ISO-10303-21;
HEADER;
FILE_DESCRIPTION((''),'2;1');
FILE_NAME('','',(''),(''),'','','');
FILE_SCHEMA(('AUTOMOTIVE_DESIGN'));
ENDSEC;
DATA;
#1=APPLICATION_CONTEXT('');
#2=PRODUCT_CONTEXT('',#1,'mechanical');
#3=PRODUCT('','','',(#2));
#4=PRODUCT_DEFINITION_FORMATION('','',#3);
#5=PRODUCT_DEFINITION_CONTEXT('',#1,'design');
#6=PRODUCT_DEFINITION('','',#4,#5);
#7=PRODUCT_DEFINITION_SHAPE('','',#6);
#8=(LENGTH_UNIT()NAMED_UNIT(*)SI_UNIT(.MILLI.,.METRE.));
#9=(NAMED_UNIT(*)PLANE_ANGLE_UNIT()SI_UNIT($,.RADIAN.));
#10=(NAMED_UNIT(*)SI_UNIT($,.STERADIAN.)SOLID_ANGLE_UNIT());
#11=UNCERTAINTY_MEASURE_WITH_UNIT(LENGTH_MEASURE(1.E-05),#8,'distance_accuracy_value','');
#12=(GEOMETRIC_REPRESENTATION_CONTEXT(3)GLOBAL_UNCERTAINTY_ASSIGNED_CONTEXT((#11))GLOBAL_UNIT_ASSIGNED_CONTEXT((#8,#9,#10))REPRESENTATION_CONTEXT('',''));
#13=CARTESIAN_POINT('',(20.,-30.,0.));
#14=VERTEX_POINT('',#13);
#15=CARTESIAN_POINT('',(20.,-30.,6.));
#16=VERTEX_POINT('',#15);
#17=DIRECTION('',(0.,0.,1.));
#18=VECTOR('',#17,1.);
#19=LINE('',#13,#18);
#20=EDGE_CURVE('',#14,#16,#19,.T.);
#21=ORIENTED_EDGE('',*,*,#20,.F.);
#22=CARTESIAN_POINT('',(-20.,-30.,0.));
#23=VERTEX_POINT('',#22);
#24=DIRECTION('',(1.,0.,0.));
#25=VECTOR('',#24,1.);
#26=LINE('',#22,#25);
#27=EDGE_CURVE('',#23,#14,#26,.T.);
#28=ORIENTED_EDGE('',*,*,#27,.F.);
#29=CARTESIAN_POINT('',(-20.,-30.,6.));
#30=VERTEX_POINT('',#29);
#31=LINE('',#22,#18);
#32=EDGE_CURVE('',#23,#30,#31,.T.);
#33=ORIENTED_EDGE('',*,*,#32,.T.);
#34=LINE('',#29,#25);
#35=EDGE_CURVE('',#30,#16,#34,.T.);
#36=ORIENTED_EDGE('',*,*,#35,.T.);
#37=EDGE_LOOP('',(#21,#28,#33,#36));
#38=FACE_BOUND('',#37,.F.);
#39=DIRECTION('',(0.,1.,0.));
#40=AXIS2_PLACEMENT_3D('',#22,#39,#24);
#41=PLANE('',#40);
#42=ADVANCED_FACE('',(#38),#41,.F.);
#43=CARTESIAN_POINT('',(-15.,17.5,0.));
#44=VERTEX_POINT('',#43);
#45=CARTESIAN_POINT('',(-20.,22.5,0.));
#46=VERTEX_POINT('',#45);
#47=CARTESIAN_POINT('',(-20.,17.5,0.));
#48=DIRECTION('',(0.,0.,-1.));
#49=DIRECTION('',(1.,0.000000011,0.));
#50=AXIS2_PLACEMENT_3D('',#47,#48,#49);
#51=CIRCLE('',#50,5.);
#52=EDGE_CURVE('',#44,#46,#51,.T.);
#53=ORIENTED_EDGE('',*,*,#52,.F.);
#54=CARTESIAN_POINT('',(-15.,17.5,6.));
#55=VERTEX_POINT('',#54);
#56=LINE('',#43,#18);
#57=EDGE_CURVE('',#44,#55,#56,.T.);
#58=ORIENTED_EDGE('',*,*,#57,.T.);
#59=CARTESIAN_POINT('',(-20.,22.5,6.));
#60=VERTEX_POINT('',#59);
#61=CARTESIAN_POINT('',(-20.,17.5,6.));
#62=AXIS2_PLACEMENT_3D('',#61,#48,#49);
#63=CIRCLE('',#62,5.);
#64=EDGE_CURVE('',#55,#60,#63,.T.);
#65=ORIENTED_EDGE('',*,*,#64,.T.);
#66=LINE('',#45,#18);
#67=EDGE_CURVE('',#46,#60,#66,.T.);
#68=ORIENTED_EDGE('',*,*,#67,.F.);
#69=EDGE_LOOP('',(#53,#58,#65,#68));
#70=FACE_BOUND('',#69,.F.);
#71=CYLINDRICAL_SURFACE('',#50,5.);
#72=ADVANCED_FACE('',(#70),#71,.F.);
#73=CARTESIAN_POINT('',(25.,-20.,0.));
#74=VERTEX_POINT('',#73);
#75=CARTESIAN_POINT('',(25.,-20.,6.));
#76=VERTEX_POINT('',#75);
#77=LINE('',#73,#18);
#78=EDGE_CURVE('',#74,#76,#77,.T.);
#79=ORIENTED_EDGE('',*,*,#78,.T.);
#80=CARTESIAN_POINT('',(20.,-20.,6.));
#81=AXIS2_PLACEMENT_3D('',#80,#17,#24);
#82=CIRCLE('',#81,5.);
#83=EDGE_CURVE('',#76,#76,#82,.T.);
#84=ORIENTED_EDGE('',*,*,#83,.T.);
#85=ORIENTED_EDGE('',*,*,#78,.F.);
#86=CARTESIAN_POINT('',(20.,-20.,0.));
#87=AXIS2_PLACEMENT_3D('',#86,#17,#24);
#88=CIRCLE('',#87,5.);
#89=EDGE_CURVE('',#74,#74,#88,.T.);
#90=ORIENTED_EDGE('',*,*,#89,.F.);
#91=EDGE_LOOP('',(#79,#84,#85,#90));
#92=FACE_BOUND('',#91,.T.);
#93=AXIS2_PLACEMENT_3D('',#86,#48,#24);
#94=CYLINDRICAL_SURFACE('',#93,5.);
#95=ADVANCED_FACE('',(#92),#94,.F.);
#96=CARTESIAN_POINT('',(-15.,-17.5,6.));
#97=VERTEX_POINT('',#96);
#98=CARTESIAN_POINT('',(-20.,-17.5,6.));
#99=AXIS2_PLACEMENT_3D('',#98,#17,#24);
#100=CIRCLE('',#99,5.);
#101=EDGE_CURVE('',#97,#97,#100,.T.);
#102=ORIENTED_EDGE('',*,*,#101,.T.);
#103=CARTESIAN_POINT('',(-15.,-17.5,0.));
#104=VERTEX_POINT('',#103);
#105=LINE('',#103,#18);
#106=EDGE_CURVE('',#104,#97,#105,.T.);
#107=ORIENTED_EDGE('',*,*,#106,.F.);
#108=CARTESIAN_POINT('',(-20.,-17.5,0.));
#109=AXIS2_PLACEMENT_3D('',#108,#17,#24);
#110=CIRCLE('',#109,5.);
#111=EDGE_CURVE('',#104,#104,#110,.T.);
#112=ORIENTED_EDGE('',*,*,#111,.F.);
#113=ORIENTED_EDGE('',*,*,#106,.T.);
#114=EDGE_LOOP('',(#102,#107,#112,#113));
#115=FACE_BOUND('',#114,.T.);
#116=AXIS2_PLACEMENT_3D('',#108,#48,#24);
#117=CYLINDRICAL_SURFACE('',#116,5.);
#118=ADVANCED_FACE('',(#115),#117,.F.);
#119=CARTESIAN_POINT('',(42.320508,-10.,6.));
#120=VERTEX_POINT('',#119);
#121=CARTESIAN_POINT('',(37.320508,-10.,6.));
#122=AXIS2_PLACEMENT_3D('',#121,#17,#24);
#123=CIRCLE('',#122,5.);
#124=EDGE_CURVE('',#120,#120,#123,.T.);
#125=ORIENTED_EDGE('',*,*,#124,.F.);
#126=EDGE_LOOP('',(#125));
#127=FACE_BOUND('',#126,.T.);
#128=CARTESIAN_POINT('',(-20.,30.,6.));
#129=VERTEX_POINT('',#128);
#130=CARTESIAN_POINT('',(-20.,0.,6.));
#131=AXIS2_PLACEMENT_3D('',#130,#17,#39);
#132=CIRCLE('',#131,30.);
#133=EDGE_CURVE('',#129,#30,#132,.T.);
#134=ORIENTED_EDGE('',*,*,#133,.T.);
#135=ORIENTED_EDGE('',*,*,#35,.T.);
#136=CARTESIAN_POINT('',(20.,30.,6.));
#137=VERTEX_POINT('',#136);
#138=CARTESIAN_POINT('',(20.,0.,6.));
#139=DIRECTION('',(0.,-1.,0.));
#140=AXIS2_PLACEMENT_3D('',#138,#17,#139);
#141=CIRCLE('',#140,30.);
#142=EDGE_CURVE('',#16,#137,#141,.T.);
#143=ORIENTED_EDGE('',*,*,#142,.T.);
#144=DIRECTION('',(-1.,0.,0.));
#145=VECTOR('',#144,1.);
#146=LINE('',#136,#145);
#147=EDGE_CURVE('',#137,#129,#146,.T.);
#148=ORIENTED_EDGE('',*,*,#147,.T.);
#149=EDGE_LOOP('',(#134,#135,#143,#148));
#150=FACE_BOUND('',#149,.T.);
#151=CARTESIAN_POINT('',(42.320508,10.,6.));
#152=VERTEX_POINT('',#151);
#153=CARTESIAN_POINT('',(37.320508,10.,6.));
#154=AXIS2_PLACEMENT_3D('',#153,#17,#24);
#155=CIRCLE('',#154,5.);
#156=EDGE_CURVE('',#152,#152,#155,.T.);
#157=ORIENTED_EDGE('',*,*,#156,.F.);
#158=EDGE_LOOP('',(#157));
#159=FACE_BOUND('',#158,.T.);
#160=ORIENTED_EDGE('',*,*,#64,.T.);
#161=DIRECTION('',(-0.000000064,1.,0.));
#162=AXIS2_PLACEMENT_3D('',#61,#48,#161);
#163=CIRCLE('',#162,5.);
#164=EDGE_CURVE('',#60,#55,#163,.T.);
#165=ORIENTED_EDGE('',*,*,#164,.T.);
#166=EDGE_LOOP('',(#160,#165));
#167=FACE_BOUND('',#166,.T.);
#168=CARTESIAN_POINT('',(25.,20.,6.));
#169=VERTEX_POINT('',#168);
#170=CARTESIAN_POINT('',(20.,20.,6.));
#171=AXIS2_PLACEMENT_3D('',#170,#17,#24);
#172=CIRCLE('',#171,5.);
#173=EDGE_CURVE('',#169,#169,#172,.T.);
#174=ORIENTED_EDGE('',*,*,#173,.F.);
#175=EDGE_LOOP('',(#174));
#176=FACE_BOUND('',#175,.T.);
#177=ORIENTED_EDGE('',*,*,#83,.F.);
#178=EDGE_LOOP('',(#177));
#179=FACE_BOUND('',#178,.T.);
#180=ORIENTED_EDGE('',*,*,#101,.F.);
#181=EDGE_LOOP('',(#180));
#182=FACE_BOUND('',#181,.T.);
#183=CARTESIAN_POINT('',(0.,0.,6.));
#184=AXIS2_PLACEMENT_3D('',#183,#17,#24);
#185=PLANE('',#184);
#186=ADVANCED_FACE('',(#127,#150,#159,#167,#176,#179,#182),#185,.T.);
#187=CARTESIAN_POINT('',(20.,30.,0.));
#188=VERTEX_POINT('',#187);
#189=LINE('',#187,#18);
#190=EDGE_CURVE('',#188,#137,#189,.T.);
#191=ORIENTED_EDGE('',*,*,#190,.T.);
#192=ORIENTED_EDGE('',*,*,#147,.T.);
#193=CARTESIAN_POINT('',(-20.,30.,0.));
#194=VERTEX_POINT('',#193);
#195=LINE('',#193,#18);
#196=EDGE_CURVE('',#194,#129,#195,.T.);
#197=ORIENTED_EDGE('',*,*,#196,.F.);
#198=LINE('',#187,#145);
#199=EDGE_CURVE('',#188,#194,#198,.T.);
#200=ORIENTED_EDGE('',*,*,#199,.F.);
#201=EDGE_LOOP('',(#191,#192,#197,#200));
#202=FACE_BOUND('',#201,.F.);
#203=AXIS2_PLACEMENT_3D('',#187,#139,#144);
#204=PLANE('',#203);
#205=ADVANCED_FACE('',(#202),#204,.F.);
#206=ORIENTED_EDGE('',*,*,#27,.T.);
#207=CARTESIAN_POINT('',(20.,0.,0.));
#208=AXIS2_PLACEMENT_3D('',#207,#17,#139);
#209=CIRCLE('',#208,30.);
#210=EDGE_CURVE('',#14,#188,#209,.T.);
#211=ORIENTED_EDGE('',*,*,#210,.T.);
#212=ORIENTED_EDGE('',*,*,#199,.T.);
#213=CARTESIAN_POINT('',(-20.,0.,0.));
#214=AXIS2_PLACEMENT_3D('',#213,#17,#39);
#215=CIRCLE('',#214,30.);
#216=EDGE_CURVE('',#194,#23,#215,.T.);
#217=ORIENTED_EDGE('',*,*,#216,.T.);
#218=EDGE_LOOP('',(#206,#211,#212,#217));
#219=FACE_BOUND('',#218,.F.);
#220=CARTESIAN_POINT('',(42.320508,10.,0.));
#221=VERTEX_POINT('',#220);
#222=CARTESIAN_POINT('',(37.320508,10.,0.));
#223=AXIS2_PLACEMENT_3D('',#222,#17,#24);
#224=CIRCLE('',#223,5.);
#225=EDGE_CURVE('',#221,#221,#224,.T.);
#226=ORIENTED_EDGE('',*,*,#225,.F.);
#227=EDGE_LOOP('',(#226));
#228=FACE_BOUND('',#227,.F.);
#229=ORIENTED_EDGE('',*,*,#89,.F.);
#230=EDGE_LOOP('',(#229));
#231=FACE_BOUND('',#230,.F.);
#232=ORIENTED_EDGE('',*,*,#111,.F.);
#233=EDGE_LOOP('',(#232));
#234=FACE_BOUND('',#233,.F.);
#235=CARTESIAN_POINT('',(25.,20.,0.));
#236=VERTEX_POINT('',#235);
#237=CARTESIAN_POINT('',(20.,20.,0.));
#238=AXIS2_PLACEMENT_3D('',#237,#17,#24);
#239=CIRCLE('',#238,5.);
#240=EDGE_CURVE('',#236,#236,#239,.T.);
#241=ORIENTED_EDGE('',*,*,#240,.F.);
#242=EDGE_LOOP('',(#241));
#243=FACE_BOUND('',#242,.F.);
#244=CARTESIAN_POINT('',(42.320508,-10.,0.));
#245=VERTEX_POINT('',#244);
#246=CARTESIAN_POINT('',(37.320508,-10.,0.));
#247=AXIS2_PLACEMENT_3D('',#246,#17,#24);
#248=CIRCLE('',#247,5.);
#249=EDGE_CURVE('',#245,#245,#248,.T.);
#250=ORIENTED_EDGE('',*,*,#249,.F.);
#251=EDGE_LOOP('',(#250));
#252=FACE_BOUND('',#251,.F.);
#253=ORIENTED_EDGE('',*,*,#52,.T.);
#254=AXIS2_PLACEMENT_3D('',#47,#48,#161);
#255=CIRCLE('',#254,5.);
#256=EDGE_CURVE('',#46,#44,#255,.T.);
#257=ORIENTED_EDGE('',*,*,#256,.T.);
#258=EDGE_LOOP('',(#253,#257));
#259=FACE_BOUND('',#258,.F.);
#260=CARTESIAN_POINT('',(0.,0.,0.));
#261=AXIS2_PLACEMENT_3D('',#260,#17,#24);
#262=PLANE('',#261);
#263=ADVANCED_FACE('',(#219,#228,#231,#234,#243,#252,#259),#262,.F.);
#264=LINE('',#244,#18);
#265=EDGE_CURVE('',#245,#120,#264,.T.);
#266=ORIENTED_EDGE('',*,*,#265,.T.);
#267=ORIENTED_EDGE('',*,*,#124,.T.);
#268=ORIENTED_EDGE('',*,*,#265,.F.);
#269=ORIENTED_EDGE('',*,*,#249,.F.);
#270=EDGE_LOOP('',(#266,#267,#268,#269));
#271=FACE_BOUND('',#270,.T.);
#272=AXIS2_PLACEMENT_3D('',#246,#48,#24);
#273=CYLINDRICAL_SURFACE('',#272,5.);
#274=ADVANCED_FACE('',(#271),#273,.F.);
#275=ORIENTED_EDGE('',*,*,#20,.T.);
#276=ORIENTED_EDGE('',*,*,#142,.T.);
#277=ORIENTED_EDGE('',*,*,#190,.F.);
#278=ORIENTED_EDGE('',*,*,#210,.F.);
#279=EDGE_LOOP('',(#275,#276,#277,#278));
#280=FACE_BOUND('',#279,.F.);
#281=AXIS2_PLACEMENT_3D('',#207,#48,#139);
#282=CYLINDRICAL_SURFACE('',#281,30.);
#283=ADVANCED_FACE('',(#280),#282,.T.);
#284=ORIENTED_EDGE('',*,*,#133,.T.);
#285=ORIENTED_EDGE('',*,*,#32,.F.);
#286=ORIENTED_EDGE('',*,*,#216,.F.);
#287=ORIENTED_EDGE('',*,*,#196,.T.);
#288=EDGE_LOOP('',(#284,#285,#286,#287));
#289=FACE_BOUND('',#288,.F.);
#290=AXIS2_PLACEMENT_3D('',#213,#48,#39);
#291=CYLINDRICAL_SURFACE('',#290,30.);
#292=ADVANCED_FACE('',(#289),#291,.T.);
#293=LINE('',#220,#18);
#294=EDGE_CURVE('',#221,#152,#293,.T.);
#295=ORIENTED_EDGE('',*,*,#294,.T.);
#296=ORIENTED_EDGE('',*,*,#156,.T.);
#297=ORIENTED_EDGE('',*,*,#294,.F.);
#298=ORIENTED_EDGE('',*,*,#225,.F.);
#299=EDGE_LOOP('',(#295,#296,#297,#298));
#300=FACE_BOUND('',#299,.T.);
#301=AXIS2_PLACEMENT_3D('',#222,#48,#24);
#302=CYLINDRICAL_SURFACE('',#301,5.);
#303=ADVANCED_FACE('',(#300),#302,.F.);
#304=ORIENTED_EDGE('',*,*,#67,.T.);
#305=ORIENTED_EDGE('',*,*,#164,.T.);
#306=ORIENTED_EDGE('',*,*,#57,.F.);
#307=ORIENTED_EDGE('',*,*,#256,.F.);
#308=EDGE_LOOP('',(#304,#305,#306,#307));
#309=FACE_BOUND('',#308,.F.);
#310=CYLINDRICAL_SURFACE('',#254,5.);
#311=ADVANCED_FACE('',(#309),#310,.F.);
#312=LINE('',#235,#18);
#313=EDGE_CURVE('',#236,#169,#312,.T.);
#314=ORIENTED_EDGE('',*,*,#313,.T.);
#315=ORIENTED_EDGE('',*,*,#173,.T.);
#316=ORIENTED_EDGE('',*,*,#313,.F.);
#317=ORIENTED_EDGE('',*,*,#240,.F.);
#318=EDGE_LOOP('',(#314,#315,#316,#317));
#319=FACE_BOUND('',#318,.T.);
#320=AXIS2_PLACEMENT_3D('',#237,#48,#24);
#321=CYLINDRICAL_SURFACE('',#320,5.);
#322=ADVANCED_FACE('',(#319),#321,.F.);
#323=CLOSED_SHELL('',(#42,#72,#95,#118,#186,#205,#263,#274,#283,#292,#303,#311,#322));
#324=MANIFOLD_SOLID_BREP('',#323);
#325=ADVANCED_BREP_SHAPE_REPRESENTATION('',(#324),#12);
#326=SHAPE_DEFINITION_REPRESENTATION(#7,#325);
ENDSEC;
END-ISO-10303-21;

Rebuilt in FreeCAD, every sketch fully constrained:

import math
import FreeCAD as App
import Part
import Sketcher
from FreeCAD import Vector

doc = App.newDocument("Part")
body = doc.addObject("PartDesign::Body", "Body")

# Sketch on XY plane
sketch1 = body.newObject("Sketcher::SketchObject", "Sketch")
sketch1.AttachmentSupport = (doc.getObject("XY_Plane"), [""])
sketch1.MapMode = "FlatFace"
sketch1.addGeometry([
    Part.ArcOfCircle(Part.Circle(Vector(20, 0, 0), Vector(0, 0, 1), 30), math.radians(-90), math.radians(90)),  # 0
    Part.LineSegment(Vector(20, 30, 0), Vector(-20, 30, 0)),  # 1
    Part.ArcOfCircle(Part.Circle(Vector(-20, 0, 0), Vector(0, 0, 1), 30), math.radians(90), math.radians(270)),  # 2
    Part.LineSegment(Vector(-20, -30, 0), Vector(20, -30, 0)),  # 3
    Part.Circle(Vector(-20, -17.5, 0), Vector(0, 0, 1), 5),  # 4
    Part.Circle(Vector(20, -20, 0), Vector(0, 0, 1), 5),  # 5
    Part.Circle(Vector(37.3, -10, 0), Vector(0, 0, 1), 5),  # 6
    Part.ArcOfCircle(Part.Circle(Vector(-20, 17.5, 0), Vector(0, 0, 1), 5), math.radians(0), math.radians(90)),  # 7
    Part.ArcOfCircle(Part.Circle(Vector(-20, 17.5, 0), Vector(0, 0, 1), 5), math.radians(90), math.radians(360)),  # 8
    Part.Circle(Vector(37.3, 10, 0), Vector(0, 0, 1), 5),  # 9
    Part.Circle(Vector(20, 20, 0), Vector(0, 0, 1), 5),  # 10
], False)
sketch1.addConstraint([
    Sketcher.Constraint("Tangent", 0, 2, 1, 1),
    Sketcher.Constraint("Tangent", 1, 2, 2, 1),
    Sketcher.Constraint("Tangent", 2, 2, 3, 1),
    Sketcher.Constraint("Tangent", 3, 2, 0, 1),
    Sketcher.Constraint("Tangent", 7, 1, 8, 2),
    Sketcher.Constraint("Coincident", 8, 1, 7, 2),
    Sketcher.Constraint("Horizontal", 1),
    Sketcher.Constraint("Horizontal", 3),
    Sketcher.Constraint("Equal", 4, 5),
    Sketcher.Constraint("Equal", 5, 6),
    Sketcher.Constraint("Equal", 6, 7),
    Sketcher.Constraint("Equal", 8, 9),
    Sketcher.Constraint("Equal", 9, 10),
    Sketcher.Constraint("Symmetric", 0, 3, 2, 3, -1, 1),
    Sketcher.Constraint("Symmetric", 4, 3, 7, 3, -1),
    Sketcher.Constraint("Symmetric", 6, 3, 9, 3, -1),
    Sketcher.Constraint("Symmetric", 5, 3, 10, 3, -1),
    Sketcher.Constraint("Horizontal", 8, 3, 7, 1),
    Sketcher.Constraint("Vertical", 2, 3, 4, 3),
    Sketcher.Constraint("Vertical", 0, 3, 5, 3),
    Sketcher.Constraint("Vertical", 2, 2, 8, 1),
    Sketcher.Constraint("Diameter", 4, 10.0),
    Sketcher.Constraint("Radius", 0, 30.0),
    Sketcher.Constraint("DistanceX", 1, 2, 1, 1, 40.0),
    Sketcher.Constraint("DistanceY", 5, 3, -1, 1, 20.0),
    Sketcher.Constraint("DistanceY", 6, 3, -1, 1, 10.0),
    Sketcher.Constraint("DistanceY", 4, 3, 7, 3, 35.0),
    Sketcher.Constraint("DistanceX", 8, 3, 9, 3, 57.320508),
])
pad1 = body.newObject("PartDesign::Pad", "Pad")
pad1.Profile = sketch1
pad1.Length = 6

doc.recompute()
